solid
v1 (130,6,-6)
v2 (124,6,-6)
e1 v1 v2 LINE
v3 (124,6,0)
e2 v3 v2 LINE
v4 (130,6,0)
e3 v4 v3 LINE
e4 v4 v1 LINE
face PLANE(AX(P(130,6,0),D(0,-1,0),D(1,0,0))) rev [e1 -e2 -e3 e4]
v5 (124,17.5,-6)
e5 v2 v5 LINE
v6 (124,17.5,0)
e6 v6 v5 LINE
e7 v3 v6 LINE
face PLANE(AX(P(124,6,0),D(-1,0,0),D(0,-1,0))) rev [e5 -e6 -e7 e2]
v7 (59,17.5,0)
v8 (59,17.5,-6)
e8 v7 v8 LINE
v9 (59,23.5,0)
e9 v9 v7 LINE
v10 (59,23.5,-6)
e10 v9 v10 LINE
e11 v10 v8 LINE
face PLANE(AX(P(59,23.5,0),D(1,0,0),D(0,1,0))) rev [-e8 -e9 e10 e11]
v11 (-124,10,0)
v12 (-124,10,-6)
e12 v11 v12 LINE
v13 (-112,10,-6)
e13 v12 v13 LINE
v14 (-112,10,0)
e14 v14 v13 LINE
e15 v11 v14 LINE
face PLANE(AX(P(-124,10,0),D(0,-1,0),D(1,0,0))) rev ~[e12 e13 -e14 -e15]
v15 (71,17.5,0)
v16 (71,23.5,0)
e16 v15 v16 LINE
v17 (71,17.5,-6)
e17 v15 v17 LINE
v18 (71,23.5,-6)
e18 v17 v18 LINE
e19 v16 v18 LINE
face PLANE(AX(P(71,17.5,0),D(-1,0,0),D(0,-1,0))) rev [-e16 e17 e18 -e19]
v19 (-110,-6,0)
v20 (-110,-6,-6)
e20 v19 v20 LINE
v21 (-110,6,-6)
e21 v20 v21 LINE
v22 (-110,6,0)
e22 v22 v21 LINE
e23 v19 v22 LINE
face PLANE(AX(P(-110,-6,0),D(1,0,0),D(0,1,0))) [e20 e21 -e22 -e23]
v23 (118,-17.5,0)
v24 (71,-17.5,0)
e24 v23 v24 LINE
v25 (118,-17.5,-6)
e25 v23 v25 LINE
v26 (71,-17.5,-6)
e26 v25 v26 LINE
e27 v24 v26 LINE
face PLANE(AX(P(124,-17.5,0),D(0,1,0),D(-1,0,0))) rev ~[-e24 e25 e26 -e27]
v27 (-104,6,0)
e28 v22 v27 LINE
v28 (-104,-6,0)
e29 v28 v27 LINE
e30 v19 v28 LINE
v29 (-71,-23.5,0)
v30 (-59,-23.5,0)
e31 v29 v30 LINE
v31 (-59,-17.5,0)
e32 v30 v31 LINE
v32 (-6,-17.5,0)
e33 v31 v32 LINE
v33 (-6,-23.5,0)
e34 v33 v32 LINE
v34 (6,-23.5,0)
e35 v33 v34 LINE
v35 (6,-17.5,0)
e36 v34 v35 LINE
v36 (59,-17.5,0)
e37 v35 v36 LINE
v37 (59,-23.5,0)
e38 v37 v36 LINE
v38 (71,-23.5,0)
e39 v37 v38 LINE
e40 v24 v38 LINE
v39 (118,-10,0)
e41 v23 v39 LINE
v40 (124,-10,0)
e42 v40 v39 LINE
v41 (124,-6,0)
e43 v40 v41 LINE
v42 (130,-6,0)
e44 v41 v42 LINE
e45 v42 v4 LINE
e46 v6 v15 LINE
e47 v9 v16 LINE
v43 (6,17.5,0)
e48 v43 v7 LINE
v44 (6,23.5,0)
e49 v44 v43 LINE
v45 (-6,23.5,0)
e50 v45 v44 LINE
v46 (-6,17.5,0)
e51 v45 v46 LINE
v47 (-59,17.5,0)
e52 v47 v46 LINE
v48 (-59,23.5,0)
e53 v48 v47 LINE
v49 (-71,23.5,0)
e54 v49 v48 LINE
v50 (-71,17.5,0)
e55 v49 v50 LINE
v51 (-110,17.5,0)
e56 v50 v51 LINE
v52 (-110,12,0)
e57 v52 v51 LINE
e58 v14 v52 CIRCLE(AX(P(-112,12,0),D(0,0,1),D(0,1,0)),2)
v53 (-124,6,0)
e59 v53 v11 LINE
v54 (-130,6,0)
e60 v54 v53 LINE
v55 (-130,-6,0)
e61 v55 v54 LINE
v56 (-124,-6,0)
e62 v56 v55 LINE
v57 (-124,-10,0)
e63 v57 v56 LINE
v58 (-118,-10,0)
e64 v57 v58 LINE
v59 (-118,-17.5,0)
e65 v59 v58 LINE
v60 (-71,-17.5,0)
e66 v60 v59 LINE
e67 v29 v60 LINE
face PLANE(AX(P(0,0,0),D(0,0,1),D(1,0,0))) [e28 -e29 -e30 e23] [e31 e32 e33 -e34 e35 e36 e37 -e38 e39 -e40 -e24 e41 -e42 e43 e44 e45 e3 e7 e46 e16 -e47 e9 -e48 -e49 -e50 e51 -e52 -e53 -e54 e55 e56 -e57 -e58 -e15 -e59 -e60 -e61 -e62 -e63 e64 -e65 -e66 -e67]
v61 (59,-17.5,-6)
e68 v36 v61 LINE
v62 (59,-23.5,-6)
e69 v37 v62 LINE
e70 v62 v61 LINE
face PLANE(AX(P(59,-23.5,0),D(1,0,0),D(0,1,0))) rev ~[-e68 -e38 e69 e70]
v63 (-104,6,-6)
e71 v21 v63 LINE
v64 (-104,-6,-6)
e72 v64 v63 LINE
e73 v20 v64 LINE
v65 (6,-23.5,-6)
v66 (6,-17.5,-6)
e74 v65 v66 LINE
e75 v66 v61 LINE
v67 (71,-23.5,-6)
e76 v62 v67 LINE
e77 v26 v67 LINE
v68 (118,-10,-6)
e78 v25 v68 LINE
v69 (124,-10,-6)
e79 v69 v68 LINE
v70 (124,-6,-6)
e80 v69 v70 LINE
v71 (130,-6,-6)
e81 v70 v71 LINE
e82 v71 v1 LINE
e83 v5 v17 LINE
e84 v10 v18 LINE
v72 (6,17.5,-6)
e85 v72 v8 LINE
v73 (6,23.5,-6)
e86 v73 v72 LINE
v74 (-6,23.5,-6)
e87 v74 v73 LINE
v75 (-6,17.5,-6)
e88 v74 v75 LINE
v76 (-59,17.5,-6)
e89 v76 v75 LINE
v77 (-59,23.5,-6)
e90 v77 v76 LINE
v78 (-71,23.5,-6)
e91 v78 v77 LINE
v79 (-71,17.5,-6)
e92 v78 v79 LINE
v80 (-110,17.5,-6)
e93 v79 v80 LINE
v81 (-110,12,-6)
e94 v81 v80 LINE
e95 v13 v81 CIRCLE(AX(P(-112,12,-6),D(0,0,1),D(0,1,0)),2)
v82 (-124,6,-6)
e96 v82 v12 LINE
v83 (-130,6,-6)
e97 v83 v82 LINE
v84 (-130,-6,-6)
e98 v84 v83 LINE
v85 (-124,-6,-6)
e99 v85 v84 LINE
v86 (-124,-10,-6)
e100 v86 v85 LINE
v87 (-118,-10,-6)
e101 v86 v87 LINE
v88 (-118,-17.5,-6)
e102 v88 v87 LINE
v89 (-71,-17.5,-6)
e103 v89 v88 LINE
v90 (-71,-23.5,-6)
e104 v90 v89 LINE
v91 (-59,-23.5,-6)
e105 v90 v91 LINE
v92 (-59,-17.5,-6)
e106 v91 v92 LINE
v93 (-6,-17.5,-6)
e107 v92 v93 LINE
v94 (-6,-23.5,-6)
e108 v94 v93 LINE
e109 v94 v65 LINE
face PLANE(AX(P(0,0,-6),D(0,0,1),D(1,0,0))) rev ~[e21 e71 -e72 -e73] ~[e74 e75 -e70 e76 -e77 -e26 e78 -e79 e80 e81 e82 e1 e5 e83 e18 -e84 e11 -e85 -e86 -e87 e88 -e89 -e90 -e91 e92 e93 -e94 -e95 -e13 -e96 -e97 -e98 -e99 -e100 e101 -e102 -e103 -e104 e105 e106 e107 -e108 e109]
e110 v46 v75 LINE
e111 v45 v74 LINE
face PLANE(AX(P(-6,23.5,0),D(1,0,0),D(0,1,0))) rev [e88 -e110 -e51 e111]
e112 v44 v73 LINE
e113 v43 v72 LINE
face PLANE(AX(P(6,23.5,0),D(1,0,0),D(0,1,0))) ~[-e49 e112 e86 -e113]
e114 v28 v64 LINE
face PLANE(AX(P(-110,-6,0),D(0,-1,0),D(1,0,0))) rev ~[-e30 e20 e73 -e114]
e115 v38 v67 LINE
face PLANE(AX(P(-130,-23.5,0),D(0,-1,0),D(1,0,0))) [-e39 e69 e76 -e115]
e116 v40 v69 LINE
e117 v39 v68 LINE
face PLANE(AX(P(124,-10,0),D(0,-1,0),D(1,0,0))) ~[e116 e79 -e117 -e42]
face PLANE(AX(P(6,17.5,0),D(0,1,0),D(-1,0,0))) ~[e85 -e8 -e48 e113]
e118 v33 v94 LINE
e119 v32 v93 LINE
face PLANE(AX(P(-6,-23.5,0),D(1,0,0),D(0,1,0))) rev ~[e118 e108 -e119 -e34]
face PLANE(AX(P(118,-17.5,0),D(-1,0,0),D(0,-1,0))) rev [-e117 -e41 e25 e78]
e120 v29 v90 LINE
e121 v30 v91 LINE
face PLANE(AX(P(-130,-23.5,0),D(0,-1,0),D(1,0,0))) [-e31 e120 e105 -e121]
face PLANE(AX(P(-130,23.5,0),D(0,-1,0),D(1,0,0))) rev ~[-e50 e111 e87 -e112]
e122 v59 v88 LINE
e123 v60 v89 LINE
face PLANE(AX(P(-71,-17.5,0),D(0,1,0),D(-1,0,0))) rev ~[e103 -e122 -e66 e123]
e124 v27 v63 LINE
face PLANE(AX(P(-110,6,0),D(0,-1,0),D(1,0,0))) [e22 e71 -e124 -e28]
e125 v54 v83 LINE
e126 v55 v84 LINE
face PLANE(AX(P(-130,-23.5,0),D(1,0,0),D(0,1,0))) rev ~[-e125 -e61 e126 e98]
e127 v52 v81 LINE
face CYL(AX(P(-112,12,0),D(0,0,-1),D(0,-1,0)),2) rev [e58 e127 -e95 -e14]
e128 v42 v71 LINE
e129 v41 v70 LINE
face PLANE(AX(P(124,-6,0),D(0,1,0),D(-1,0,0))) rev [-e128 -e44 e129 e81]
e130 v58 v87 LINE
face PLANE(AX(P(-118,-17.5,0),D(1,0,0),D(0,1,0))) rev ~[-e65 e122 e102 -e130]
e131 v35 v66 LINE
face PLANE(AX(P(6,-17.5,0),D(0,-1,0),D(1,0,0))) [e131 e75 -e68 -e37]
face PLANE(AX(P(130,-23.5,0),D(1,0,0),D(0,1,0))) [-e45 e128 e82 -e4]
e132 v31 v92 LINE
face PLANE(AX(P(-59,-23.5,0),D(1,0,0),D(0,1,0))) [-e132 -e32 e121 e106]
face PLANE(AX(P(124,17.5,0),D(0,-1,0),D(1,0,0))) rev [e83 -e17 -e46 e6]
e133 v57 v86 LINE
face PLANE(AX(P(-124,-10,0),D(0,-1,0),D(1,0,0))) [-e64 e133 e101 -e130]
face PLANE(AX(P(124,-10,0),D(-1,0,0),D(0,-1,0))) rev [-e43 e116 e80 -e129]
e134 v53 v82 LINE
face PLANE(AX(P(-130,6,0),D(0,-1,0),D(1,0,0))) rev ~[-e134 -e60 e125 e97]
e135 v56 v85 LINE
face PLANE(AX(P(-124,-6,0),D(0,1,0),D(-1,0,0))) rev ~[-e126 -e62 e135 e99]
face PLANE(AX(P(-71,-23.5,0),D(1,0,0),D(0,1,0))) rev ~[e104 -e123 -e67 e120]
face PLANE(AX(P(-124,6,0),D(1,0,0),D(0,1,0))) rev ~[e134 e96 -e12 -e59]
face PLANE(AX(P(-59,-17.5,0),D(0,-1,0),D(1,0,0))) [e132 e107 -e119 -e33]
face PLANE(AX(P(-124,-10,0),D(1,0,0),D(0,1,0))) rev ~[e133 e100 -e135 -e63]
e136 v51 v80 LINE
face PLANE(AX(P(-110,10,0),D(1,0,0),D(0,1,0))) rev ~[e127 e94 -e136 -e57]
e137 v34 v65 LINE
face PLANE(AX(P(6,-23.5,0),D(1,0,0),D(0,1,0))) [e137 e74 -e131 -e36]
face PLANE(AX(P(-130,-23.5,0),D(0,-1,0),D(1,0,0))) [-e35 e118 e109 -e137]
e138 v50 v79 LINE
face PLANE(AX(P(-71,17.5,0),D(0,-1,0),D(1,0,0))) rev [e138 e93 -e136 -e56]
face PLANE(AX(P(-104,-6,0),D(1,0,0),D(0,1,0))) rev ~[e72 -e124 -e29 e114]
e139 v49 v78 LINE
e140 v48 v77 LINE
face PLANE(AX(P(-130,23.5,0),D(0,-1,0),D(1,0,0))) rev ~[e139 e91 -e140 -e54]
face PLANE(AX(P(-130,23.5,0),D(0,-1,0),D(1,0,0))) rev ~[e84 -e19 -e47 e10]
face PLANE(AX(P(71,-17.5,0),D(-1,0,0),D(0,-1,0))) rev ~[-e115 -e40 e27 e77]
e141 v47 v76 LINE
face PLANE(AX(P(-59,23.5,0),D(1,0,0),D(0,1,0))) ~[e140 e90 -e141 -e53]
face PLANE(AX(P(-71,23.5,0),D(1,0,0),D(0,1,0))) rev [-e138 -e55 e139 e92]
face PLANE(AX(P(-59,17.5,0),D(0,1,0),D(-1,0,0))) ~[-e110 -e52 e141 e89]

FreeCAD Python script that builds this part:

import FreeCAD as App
import Part
import Sketcher
Q = App.Units.Quantity


def edges_at(feature, points):
    """Names of the edges that pass closest to the given points."""
    edges = feature.Shape.Edges
    near = lambda p: min(range(len(edges)), key=lambda i: edges[i].distToShape(Part.Vertex(*p))[0])
    return sorted({f"Edge{near(p) + 1}" for p in points})


def add_polygon(sketch, points):
    """Adds a closed chain of lines whose ends are joined by coincident constraints."""
    first, n = sketch.GeometryCount, len(points)
    for a, b in zip(points, points[1:] + points[:1]):
        sketch.addGeometry(Part.LineSegment(App.Vector(*a, 0), App.Vector(*b, 0)), False)
    for i in range(n):
        sketch.addConstraint(Sketcher.Constraint("Coincident", first + i, 2, first + (i + 1) % n, 1))

doc = App.newDocument("Part")
body = doc.addObject("PartDesign::Body", "Body")

sketch1 = body.newObject("Sketcher::SketchObject", "Sketch")
sketch1.AttachmentSupport = (doc.getObject("XY_Plane"), [""])
sketch1.MapMode = "FlatFace"
add_polygon(sketch1, [(-130, 24), (-130, -24), (130, -24), (130, 24)])
sketch1.addConstraint(Sketcher.Constraint("Vertical", 0))
sketch1.addConstraint(Sketcher.Constraint("Horizontal", 1))
sketch1.addConstraint(Sketcher.Constraint("Vertical", 2))
sketch1.addConstraint(Sketcher.Constraint("Horizontal", 3))
sketch1.addConstraint(Sketcher.Constraint("Symmetric", 0, 2, 2, 2, -1, 1))
sketch1.addConstraint(Sketcher.Constraint("DistanceX", 1, 1, 1, 2, Q("260 mm")))
sketch1.addConstraint(Sketcher.Constraint("DistanceY", 0, 2, 0, 1, Q("47 mm")))
pad1 = body.newObject("PartDesign::Pad", "Pad")
pad1.Profile = sketch1
pad1.Length = 6
pad1.Reversed = True

sketch2 = body.newObject("Sketcher::SketchObject", "Sketch001")
sketch2.AttachmentSupport = (doc.getObject("XY_Plane"), [""])
sketch2.MapMode = "FlatFace"
add_polygon(sketch2, [(-130, 23.5), (-130, 6), (-124, 6), (-124, 23.5)])
add_polygon(sketch2, [(-124, -6), (-130, -6), (-130, -23.5), (-124, -23.5), (-124, -17.5), (-118, -17.5), (-118, -10), (-124, -10)])
sketch2.addConstraint(Sketcher.Constraint("Vertical", 0))
sketch2.addConstraint(Sketcher.Constraint("Horizontal", 1))
sketch2.addConstraint(Sketcher.Constraint("Vertical", 2))
sketch2.addConstraint(Sketcher.Constraint("Horizontal", 3))
sketch2.addConstraint(Sketcher.Constraint("Horizontal", 4))
sketch2.addConstraint(Sketcher.Constraint("Vertical", 5))
sketch2.addConstraint(Sketcher.Constraint("Horizontal", 6))
sketch2.addConstraint(Sketcher.Constraint("Vertical", 7))
sketch2.addConstraint(Sketcher.Constraint("Horizontal", 8))
sketch2.addConstraint(Sketcher.Constraint("Vertical", 9))
sketch2.addConstraint(Sketcher.Constraint("Horizontal", 10))
sketch2.addConstraint(Sketcher.Constraint("Vertical", 11))
sketch2.addConstraint(Sketcher.Constraint("Symmetric", 0, 2, 4, 2, -1))
sketch2.addConstraint(Sketcher.Constraint("Symmetric", 2, 2, 6, 2, -1))
sketch2.addConstraint(Sketcher.Constraint("Vertical", 7, 2, 10, 2))
sketch2.addConstraint(Sketcher.Constraint("Equal", 6, 8))
sketch2.addConstraint(Sketcher.Constraint("Equal", 10, 7))
sketch2.addConstraint(Sketcher.Constraint("DistanceX", 1, 1, 1, 2, Q("6 mm")))
sketch2.addConstraint(Sketcher.Constraint("DistanceY", 11, 1, 11, 2, Q("4 mm")))
sketch2.addConstraint(Sketcher.Constraint("DistanceY", 0, 2, 0, 1, Q("17.5 mm")))
sketch2.addConstraint(Sketcher.Constraint("DistanceX", 0, 2, -1, 1, Q("130 mm")))
sketch2.addConstraint(Sketcher.Constraint("DistanceY", -1, 1, 0, 2, Q("6 mm")))
pocket1 = body.newObject("PartDesign::Pocket", "Pocket")
pocket1.Profile = sketch2
pocket1.Type = "ThroughAll"
doc.recompute()

mirrored = body.newObject("PartDesign::Mirrored", "Mirrored")
mirrored.Originals = [pocket1]
mirrored.MirrorPlane = (doc.getObject("YZ_Plane"), [""])
body.Tip = mirrored

sketch3 = body.newObject("Sketcher::SketchObject", "Sketch002")
sketch3.AttachmentSupport = (doc.getObject("XY_Plane"), [""])
sketch3.MapMode = "FlatFace"
add_polygon(sketch3, [(-124, -18), (-124, -24), (-71, -24), (-71, -18)])
add_polygon(sketch3, [(-59, -18), (-59, -24), (-6, -24), (-6, -18)])
add_polygon(sketch3, [(6, -18), (6, -24), (59, -24), (59, -18)])
add_polygon(sketch3, [(71, -18), (71, -24), (124, -24), (124, -18)])
sketch3.addConstraint(Sketcher.Constraint("Vertical", 0))
sketch3.addConstraint(Sketcher.Constraint("Horizontal", 1))
sketch3.addConstraint(Sketcher.Constraint("Vertical", 2))
sketch3.addConstraint(Sketcher.Constraint("Horizontal", 3))
sketch3.addConstraint(Sketcher.Constraint("Vertical", 4))
sketch3.addConstraint(Sketcher.Constraint("Horizontal", 5))
sketch3.addConstraint(Sketcher.Constraint("Vertical", 6))
sketch3.addConstraint(Sketcher.Constraint("Horizontal", 7))
sketch3.addConstraint(Sketcher.Constraint("Vertical", 8))
sketch3.addConstraint(Sketcher.Constraint("Horizontal", 9))
sketch3.addConstraint(Sketcher.Constraint("Vertical", 10))
sketch3.addConstraint(Sketcher.Constraint("Horizontal", 11))
sketch3.addConstraint(Sketcher.Constraint("Vertical", 12))
sketch3.addConstraint(Sketcher.Constraint("Horizontal", 13))
sketch3.addConstraint(Sketcher.Constraint("Vertical", 14))
sketch3.addConstraint(Sketcher.Constraint("Horizontal", 15))
sketch3.addConstraint(Sketcher.Constraint("Symmetric", 5, 2, 8, 2, -2))
sketch3.addConstraint(Sketcher.Constraint("Symmetric", 7, 2, 10, 2, -2))
sketch3.addConstraint(Sketcher.Constraint("Symmetric", 1, 2, 12, 2, -2))
sketch3.addConstraint(Sketcher.Constraint("Symmetric", 3, 2, 14, 2, -2))
sketch3.addConstraint(Sketcher.Constraint("Horizontal", 1, 2, 4, 2))
sketch3.addConstraint(Sketcher.Constraint("Horizontal", 3, 2, 6, 2))
sketch3.addConstraint(Sketcher.Constraint("Equal", 3, 5))
sketch3.addConstraint(Sketcher.Constraint("DistanceX", 1, 1, 1, 2, Q("53 mm")))
sketch3.addConstraint(Sketcher.Constraint("DistanceY", 0, 2, 0, 1, Q("6 mm")))
sketch3.addConstraint(Sketcher.Constraint("DistanceX", 0, 2, -1, 1, Q("124 mm")))
sketch3.addConstraint(Sketcher.Constraint("DistanceX", 4, 2, -1, 1, Q("59 mm")))
sketch3.addConstraint(Sketcher.Constraint("DistanceY", 0, 2, -1, 1, Q("23.5 mm")))
pocket2 = body.newObject("PartDesign::Pocket", "Pocket001")
pocket2.Profile = sketch3
pocket2.Type = "ThroughAll"
doc.recompute()

mirrored2 = body.newObject("PartDesign::Mirrored", "Mirrored001")
mirrored2.Originals = [pocket2]
mirrored2.MirrorPlane = (doc.getObject("XZ_Plane"), [""])
body.Tip = mirrored2

sketch4 = body.newObject("Sketcher::SketchObject", "Sketch003")
sketch4.AttachmentSupport = (doc.getObject("XY_Plane"), [""])
sketch4.MapMode = "FlatFace"
add_polygon(sketch4, [(-124, 18), (-124, 10), (-110, 10), (-110, 18)])
add_polygon(sketch4, [(-110, 6), (-110, -6), (-104, -6), (-104, 6)])
sketch4.addConstraint(Sketcher.Constraint("Vertical", 0))
sketch4.addConstraint(Sketcher.Constraint("Horizontal", 1))
sketch4.addConstraint(Sketcher.Constraint("Vertical", 2))
sketch4.addConstraint(Sketcher.Constraint("Horizontal", 3))
sketch4.addConstraint(Sketcher.Constraint("Vertical", 4))
sketch4.addConstraint(Sketcher.Constraint("Horizontal", 5))
sketch4.addConstraint(Sketcher.Constraint("Vertical", 6))
sketch4.addConstraint(Sketcher.Constraint("Horizontal", 7))
sketch4.addConstraint(Sketcher.Constraint("Vertical", 2, 2, 4, 2))
sketch4.addConstraint(Sketcher.Constraint("DistanceX", 1, 1, 1, 2, Q("14 mm")))
sketch4.addConstraint(Sketcher.Constraint("DistanceX", 5, 1, 5, 2, Q("6 mm")))
sketch4.addConstraint(Sketcher.Constraint("DistanceY", 4, 2, 4, 1, Q("12 mm")))
sketch4.addConstraint(Sketcher.Constraint("DistanceY", 0, 2, 0, 1, Q("7.5 mm")))
sketch4.addConstraint(Sketcher.Constraint("DistanceX", 0, 2, -1, 1, Q("124 mm")))
sketch4.addConstraint(Sketcher.Constraint("DistanceY", -1, 1, 0, 2, Q("10 mm")))
sketch4.addConstraint(Sketcher.Constraint("DistanceY", 4, 2, -1, 1, Q("6 mm")))
pocket3 = body.newObject("PartDesign::Pocket", "Pocket002")
pocket3.Profile = sketch4
pocket3.Type = "ThroughAll"
doc.recompute()

fillet = body.newObject("PartDesign::Fillet", "Fillet")
fillet.Base = (pocket3, edges_at(pocket3, [(-110, 10, -3)]))
fillet.Radius = 2

doc.recompute()
